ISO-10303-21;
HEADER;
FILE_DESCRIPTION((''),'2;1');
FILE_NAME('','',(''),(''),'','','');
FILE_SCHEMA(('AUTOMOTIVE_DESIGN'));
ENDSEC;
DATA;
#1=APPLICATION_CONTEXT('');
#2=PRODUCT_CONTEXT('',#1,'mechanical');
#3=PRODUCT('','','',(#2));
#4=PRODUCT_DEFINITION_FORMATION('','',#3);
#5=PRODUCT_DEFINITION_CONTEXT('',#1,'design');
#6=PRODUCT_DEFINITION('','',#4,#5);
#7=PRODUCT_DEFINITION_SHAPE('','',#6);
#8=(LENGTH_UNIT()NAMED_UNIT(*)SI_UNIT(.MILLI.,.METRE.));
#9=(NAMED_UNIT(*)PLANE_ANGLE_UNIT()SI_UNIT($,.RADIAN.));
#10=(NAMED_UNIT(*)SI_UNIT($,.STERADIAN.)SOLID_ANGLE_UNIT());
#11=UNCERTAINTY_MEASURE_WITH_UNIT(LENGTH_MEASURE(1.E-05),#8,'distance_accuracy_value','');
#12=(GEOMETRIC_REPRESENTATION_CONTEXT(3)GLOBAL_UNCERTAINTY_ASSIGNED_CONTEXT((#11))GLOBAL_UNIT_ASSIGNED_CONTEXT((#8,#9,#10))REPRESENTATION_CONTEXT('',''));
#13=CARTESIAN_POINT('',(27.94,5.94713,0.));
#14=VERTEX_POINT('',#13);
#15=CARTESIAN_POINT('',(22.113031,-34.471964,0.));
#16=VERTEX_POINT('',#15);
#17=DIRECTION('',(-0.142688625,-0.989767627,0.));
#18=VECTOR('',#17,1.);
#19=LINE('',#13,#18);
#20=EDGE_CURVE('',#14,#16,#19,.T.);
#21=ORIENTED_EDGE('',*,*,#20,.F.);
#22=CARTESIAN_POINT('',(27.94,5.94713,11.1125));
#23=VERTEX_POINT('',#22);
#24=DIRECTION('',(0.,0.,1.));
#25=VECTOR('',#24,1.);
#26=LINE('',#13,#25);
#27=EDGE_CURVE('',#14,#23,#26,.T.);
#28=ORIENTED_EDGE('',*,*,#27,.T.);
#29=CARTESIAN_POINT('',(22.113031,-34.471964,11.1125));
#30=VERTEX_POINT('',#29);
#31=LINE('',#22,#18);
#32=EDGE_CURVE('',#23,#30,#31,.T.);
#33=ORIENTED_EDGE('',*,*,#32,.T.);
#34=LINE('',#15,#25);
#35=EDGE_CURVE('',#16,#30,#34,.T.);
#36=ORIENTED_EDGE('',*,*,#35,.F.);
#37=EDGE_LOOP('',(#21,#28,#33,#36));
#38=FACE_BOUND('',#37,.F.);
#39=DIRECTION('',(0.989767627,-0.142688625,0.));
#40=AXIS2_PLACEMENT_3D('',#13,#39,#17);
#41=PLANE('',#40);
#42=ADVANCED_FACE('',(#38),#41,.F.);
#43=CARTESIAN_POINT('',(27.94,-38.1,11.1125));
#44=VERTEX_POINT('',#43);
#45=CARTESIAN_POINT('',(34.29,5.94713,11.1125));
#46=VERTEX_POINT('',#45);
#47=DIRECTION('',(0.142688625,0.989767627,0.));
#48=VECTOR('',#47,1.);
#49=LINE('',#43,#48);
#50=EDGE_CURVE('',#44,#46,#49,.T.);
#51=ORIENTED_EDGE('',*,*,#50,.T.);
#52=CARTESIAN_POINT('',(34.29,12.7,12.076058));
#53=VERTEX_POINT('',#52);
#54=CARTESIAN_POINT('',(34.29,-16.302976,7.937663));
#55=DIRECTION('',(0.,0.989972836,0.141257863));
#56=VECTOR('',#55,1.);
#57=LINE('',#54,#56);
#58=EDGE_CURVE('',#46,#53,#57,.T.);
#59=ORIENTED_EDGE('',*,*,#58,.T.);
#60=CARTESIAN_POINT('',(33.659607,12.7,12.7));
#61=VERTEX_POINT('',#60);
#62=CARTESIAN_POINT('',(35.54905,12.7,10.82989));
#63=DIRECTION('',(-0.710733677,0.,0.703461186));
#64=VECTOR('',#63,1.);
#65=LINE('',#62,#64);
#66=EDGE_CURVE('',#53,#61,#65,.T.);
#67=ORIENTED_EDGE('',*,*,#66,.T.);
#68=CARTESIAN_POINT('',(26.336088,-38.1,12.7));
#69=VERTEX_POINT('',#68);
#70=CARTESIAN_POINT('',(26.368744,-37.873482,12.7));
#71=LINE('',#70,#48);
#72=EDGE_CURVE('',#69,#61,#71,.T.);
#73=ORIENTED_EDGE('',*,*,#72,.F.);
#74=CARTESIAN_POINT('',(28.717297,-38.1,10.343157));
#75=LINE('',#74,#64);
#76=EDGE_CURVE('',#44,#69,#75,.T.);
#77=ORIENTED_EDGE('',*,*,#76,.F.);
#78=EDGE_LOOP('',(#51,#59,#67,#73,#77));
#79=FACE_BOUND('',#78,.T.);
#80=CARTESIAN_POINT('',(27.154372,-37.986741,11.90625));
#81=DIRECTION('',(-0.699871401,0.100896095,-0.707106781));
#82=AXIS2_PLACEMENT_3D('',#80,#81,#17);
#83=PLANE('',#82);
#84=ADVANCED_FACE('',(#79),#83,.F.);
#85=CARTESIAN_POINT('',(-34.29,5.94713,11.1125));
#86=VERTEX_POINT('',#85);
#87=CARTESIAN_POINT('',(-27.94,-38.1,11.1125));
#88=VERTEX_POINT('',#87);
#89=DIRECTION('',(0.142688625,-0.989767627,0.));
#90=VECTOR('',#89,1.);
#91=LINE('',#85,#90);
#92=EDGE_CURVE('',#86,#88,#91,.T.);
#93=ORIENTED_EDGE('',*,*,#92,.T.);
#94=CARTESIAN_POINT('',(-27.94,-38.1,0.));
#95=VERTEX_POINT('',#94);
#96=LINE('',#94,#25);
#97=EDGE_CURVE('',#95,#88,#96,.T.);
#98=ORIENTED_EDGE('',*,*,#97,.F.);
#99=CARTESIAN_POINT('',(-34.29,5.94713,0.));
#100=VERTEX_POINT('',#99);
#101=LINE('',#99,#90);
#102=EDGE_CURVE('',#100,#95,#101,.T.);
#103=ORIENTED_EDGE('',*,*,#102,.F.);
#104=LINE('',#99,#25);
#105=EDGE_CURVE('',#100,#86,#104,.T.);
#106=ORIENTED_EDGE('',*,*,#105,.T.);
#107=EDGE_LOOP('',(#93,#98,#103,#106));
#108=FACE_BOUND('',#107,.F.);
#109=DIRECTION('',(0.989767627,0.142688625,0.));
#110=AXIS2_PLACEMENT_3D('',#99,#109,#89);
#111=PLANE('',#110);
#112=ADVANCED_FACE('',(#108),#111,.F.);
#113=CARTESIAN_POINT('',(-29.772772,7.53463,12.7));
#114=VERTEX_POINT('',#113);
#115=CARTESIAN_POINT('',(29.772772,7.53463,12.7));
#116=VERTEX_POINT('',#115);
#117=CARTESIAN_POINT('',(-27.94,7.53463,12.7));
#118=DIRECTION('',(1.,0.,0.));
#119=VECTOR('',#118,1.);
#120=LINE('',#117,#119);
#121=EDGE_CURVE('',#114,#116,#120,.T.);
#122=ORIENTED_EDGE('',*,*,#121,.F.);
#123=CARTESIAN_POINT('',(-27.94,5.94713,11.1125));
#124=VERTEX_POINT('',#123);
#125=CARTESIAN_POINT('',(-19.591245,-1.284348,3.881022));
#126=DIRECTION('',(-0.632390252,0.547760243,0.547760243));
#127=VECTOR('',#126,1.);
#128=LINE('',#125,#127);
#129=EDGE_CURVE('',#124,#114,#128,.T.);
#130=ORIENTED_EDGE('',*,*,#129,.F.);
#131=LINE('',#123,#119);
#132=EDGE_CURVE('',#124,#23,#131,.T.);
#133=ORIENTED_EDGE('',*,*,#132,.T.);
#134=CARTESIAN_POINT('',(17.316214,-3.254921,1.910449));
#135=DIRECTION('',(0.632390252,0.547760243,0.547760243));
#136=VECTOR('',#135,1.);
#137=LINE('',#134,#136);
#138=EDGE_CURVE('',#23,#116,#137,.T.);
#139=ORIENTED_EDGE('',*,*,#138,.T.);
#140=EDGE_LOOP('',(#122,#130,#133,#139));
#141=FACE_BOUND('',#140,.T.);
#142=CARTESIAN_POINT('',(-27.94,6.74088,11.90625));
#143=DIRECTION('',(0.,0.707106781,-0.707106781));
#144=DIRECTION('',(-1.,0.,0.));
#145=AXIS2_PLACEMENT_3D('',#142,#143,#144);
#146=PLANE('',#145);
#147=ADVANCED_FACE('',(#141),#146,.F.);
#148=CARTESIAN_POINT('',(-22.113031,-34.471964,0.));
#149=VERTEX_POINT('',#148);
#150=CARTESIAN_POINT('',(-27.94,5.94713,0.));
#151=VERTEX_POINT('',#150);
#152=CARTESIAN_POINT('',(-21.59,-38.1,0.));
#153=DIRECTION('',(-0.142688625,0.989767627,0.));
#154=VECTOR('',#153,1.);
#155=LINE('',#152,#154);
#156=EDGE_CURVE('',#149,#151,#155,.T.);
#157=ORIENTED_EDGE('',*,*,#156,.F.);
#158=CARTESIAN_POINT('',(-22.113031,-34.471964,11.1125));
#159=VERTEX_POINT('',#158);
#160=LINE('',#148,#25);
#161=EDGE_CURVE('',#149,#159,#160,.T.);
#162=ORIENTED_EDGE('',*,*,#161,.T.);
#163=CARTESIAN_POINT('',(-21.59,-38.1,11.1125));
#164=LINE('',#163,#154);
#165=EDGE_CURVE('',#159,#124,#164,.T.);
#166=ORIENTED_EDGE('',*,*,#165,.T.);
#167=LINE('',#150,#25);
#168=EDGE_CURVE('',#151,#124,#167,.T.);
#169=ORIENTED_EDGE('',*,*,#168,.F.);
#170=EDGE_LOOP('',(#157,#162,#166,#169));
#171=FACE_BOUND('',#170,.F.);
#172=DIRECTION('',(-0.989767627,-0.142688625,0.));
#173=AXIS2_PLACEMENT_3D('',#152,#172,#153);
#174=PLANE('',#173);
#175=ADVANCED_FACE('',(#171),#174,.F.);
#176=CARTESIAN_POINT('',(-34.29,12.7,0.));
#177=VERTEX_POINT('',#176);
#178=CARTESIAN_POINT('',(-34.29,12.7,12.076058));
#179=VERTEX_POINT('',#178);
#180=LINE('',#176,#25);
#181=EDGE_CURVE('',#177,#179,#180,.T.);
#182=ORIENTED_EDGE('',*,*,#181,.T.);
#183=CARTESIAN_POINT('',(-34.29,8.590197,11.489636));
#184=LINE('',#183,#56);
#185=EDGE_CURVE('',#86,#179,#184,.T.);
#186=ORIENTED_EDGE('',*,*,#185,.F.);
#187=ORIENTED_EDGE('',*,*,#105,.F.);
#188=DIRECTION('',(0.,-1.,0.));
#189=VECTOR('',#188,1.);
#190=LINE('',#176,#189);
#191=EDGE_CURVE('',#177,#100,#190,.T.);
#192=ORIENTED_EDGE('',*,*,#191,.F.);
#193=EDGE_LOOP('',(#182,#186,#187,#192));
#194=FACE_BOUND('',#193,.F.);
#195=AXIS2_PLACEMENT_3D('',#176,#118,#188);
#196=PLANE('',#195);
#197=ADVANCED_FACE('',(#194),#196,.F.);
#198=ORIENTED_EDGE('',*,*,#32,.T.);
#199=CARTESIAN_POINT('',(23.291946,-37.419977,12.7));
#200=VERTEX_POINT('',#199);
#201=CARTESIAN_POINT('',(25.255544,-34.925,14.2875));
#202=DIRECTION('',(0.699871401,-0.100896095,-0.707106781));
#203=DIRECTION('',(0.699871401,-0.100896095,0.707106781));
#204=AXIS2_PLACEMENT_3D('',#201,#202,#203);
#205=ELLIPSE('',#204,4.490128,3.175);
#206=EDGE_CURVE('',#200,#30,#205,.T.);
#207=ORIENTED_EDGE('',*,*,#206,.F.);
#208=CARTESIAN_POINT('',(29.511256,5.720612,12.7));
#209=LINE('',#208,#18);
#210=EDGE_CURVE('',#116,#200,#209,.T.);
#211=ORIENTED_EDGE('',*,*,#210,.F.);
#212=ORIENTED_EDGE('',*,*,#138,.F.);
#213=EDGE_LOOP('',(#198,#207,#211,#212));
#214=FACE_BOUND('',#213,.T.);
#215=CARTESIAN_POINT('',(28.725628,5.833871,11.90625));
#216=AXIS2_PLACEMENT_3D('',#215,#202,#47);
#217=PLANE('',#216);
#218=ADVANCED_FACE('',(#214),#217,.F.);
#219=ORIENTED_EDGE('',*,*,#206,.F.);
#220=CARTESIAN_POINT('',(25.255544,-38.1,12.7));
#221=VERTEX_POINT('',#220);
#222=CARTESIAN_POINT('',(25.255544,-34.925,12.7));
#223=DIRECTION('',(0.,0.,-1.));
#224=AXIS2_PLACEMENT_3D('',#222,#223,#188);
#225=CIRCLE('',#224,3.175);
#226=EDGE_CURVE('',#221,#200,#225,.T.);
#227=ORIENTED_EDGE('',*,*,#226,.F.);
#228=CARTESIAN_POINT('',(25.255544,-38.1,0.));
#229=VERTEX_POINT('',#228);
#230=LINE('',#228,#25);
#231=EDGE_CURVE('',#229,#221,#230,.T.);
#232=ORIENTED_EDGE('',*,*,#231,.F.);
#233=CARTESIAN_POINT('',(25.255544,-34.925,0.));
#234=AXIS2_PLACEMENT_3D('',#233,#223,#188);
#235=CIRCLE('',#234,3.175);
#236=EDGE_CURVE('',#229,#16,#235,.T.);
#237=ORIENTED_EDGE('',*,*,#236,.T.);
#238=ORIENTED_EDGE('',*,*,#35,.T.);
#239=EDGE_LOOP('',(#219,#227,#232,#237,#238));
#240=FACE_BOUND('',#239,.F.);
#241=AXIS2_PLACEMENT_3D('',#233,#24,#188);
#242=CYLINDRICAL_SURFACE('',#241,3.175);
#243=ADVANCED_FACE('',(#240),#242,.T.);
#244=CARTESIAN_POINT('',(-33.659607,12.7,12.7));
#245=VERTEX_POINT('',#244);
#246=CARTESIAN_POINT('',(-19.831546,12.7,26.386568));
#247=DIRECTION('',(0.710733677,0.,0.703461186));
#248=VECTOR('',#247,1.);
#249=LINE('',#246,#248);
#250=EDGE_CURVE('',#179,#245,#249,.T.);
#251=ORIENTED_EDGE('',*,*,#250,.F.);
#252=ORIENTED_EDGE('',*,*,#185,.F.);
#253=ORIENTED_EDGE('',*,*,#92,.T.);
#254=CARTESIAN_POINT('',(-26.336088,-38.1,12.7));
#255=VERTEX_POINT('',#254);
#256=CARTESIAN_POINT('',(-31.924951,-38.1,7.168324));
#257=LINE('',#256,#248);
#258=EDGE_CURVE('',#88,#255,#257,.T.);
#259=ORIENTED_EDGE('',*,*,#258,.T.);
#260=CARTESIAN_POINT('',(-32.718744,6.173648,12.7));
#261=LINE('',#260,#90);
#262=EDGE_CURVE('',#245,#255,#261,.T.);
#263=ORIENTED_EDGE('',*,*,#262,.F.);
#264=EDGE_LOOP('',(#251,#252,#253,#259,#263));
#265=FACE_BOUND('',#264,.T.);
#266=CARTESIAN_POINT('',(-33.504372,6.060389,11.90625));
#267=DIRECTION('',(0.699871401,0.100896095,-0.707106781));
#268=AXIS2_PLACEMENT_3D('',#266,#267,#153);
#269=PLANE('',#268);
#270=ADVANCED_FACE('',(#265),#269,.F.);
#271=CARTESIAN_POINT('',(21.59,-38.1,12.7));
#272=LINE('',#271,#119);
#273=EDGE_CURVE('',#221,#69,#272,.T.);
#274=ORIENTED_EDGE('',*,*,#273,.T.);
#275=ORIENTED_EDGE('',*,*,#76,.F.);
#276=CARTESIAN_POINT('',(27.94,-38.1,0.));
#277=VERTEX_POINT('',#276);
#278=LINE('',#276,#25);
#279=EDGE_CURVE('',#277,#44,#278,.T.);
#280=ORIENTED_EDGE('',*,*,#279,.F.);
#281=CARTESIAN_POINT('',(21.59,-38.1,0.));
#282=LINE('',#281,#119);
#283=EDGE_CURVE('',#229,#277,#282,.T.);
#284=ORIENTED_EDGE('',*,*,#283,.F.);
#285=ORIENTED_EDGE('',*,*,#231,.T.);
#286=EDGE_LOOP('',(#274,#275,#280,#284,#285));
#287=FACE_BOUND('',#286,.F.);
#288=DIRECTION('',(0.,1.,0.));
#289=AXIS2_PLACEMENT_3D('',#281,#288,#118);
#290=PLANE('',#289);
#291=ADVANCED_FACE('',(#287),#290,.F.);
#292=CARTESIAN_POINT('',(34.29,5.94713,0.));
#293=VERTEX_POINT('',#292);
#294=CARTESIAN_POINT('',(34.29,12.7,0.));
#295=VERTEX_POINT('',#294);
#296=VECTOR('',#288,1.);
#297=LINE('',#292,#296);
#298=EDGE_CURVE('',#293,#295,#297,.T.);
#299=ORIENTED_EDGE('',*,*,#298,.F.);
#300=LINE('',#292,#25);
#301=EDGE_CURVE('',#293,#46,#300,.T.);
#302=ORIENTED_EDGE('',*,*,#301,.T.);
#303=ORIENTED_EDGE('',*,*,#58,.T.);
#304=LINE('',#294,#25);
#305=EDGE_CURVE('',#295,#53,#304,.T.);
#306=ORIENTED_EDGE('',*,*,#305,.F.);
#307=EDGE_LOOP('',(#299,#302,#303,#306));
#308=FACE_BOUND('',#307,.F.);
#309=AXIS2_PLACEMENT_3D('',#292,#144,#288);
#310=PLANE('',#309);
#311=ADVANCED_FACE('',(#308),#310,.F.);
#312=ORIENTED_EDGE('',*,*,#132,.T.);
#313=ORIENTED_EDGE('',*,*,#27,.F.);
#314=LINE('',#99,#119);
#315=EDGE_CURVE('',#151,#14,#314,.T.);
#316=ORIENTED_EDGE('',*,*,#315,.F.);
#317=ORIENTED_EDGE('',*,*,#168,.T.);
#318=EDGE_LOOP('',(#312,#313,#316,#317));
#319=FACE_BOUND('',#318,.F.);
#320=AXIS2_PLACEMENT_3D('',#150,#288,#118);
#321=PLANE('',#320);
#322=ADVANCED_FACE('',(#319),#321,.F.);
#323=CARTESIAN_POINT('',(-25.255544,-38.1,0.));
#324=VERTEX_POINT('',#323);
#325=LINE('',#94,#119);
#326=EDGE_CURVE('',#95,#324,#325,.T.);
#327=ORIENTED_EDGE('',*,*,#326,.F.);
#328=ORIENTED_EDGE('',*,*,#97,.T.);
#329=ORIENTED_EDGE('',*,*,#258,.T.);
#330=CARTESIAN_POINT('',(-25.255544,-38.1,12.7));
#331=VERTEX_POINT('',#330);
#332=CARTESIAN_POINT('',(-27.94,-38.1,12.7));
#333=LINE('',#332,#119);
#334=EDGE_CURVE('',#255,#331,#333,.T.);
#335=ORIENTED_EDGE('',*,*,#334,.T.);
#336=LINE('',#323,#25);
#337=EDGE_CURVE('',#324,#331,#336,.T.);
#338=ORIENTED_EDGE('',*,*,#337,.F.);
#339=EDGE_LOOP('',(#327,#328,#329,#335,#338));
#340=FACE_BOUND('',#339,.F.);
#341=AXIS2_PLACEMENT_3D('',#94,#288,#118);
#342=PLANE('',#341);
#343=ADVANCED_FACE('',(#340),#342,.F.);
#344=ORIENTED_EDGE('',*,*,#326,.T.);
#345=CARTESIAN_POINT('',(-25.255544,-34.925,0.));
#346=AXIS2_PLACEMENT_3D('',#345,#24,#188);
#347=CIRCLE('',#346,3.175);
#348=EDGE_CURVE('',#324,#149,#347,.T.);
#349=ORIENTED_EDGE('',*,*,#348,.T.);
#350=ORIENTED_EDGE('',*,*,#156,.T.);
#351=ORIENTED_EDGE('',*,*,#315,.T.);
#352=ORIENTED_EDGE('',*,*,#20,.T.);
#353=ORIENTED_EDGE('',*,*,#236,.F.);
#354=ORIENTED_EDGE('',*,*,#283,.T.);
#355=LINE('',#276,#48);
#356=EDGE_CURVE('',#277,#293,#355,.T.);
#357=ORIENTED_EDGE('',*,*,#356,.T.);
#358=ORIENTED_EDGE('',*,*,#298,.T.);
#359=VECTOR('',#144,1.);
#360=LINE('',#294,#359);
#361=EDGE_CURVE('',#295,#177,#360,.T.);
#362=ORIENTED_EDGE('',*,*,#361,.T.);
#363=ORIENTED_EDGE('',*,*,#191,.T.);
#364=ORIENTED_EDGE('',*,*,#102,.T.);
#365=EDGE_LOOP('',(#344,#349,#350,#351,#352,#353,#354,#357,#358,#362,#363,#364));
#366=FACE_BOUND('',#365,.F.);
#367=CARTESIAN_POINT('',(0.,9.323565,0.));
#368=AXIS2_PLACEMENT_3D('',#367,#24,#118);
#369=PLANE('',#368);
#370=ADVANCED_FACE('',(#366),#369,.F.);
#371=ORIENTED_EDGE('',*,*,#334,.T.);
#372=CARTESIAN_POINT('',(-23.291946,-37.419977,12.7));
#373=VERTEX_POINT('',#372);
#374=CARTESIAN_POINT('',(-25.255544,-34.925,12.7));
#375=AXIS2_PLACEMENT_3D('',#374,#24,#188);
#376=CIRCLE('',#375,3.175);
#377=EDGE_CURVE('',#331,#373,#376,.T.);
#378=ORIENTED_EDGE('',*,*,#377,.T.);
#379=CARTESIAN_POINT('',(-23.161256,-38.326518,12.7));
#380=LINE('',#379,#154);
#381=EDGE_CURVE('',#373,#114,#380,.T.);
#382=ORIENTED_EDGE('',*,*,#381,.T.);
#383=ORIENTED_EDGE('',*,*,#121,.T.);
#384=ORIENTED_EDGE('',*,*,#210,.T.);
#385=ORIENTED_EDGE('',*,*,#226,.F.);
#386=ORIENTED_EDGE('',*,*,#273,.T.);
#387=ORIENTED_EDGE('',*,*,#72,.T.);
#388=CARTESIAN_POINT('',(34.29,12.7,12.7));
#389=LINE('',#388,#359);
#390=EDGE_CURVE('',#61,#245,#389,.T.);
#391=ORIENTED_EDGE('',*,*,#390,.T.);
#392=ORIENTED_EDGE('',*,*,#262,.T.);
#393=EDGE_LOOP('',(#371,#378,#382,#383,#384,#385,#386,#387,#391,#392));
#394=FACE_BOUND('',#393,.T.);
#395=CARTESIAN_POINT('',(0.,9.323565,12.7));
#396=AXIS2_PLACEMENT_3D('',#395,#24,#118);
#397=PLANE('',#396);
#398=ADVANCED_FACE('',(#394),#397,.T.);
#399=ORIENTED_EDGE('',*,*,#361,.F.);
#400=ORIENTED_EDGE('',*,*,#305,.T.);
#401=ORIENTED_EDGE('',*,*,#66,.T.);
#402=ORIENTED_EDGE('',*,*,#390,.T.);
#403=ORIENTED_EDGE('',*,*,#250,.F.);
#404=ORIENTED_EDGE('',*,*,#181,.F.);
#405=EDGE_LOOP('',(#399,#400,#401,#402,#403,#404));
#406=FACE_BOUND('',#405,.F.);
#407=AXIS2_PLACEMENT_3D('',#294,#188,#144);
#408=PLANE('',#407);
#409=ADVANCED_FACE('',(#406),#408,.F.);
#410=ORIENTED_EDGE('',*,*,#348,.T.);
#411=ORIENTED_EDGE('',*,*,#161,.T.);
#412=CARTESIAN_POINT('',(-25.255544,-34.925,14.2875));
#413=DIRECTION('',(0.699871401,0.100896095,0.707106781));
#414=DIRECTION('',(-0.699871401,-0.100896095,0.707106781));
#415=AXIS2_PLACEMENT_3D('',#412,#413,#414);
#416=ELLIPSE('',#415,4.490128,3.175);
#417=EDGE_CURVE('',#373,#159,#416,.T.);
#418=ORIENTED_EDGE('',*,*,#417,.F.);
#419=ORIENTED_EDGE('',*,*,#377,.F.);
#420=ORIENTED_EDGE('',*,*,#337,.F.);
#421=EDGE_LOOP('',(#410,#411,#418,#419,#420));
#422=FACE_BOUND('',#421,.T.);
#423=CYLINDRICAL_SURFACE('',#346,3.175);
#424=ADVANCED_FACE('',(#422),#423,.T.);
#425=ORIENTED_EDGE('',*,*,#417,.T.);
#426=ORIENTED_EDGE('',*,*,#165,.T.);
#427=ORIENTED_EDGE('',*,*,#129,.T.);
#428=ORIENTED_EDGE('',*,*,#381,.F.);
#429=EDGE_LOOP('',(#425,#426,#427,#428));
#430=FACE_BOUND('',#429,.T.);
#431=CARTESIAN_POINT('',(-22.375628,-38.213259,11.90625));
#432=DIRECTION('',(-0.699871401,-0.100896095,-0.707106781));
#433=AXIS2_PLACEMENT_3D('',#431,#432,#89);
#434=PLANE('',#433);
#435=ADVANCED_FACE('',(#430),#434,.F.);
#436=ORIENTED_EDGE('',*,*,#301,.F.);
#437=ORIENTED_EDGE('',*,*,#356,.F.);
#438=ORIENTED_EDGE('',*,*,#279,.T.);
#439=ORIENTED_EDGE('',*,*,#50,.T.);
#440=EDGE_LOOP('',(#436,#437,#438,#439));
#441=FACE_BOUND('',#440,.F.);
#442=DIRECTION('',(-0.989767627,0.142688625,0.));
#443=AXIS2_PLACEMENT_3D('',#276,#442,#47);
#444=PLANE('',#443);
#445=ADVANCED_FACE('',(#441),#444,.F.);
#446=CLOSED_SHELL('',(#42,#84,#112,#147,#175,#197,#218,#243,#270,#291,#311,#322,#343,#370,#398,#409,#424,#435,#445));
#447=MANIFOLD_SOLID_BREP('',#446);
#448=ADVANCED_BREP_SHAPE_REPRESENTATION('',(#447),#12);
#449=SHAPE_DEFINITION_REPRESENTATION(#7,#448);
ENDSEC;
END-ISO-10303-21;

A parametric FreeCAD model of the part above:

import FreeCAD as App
import Part
import Sketcher
from FreeCAD import Vector
Q = App.Units.Quantity


def edges_at(feature, points):
    """Names of the edges that pass closest to the given points."""
    edges = feature.Shape.Edges
    near = lambda p: min(range(len(edges)), key=lambda i: edges[i].distToShape(Part.Vertex(*p))[0])
    return sorted({f"Edge{near(p) + 1}" for p in points})


def add_polygon(sketch, points):
    """Adds a closed chain of lines whose ends are joined by coincident constraints."""
    first, n = sketch.GeometryCount, len(points)
    for a, b in zip(points, points[1:] + points[:1]):
        sketch.addGeometry(Part.LineSegment(App.Vector(*a, 0), App.Vector(*b, 0)), False)
    for i in range(n):
        sketch.addConstraint(Sketcher.Constraint("Coincident", first + i, 2, first + (i + 1) % n, 1))

doc = App.newDocument("Part")
params = doc.addObject("Spreadsheet::Sheet", "Params")
for row, (alias, value) in enumerate([
    ("sketch1_width", "2.7 in"),
    ("sketch1_width2", "2.2 in"),
    ("pad1_length", "0.5 in"),
    ("chamfer_size", "0.0625 in"),
    ("fillet_radius", "0.125 in"),
], start=1):
    params.set(f"A{row}", alias)
    params.set(f"B{row}", "=" + value)
    params.setAlias(f"B{row}", alias)

body = doc.addObject("PartDesign::Body", "Body")

sketch1 = body.newObject("Sketcher::SketchObject", "Sketch")
sketch1.AttachmentSupport = (doc.getObject("XY_Plane"), [""])
sketch1.MapMode = "FlatFace"
add_polygon(sketch1, [(34, 13), (-34, 13), (-34, 6), (-28, -38), (-22, -38), (-28, 6), (28, 6), (22, -38), (28, -38), (34, 6)])
sketch1.addConstraint([
    Sketcher.Constraint("Horizontal", 0),
    Sketcher.Constraint("Vertical", 1),
    Sketcher.Constraint("Horizontal", 3),
    Sketcher.Constraint("Horizontal", 5),
    Sketcher.Constraint("Horizontal", 7),
    Sketcher.Constraint("Vertical", 9),
    Sketcher.Constraint("Symmetric", 3, 2, 6, 2, -2),
    Sketcher.Constraint("Symmetric", 1, 2, 8, 2, -2),
    Sketcher.Constraint("Parallel", 2, 4),
    Sketcher.Constraint("Parallel", 6, 8),
    Sketcher.Constraint("Horizontal", 1, 2, 4, 2),
    Sketcher.Constraint("Vertical", 2, 2, 4, 2),
    Sketcher.Constraint("Vertical", 5, 2, 7, 2),
    Sketcher.Constraint("DistanceX", 0, 2, 0, 1, Q("2.7 in")),
    Sketcher.Constraint("DistanceX", 5, 1, 5, 2, Q("2.2 in")),
    Sketcher.Constraint("DistanceY", 2, 2, 0, 2, Q("2 in")),
    Sketcher.Constraint("DistanceY", -1, 1, 0, 2, Q("0.5 in")),
    Sketcher.Constraint("DistanceY", 1, 2, 1, 1, Q("6.75287 mm")),
])
sketch1.setExpression("Constraints[23]", "Params.sketch1_width")
sketch1.setExpression("Constraints[24]", "Params.sketch1_width2")
pad1 = body.newObject("PartDesign::Pad", "Pad")
pad1.Profile = sketch1
pad1.setExpression("Length", "Params.pad1_length")
doc.recompute()

chamfer = body.newObject("PartDesign::Chamfer", "Chamfer")
chamfer.Base = (pad1, edges_at(pad1, [
    (-24.765, -16.076, 12.7),
    (-31.115, -16.076, 12.7),
    (0, 5.947, 12.7),
    (24.765, -16.076, 12.7),
    (31.115, -16.076, 12.7),
]))
chamfer.setExpression("Size", "Params.chamfer_size")
doc.recompute()

fillet = body.newObject("PartDesign::Fillet", "Fillet")
fillet.Base = (chamfer, edges_at(chamfer, [(-21.59, -38.1, 5.556), (21.59, -38.1, 5.556)]))
fillet.setExpression("Radius", "Params.fillet_radius")

doc.recompute()
